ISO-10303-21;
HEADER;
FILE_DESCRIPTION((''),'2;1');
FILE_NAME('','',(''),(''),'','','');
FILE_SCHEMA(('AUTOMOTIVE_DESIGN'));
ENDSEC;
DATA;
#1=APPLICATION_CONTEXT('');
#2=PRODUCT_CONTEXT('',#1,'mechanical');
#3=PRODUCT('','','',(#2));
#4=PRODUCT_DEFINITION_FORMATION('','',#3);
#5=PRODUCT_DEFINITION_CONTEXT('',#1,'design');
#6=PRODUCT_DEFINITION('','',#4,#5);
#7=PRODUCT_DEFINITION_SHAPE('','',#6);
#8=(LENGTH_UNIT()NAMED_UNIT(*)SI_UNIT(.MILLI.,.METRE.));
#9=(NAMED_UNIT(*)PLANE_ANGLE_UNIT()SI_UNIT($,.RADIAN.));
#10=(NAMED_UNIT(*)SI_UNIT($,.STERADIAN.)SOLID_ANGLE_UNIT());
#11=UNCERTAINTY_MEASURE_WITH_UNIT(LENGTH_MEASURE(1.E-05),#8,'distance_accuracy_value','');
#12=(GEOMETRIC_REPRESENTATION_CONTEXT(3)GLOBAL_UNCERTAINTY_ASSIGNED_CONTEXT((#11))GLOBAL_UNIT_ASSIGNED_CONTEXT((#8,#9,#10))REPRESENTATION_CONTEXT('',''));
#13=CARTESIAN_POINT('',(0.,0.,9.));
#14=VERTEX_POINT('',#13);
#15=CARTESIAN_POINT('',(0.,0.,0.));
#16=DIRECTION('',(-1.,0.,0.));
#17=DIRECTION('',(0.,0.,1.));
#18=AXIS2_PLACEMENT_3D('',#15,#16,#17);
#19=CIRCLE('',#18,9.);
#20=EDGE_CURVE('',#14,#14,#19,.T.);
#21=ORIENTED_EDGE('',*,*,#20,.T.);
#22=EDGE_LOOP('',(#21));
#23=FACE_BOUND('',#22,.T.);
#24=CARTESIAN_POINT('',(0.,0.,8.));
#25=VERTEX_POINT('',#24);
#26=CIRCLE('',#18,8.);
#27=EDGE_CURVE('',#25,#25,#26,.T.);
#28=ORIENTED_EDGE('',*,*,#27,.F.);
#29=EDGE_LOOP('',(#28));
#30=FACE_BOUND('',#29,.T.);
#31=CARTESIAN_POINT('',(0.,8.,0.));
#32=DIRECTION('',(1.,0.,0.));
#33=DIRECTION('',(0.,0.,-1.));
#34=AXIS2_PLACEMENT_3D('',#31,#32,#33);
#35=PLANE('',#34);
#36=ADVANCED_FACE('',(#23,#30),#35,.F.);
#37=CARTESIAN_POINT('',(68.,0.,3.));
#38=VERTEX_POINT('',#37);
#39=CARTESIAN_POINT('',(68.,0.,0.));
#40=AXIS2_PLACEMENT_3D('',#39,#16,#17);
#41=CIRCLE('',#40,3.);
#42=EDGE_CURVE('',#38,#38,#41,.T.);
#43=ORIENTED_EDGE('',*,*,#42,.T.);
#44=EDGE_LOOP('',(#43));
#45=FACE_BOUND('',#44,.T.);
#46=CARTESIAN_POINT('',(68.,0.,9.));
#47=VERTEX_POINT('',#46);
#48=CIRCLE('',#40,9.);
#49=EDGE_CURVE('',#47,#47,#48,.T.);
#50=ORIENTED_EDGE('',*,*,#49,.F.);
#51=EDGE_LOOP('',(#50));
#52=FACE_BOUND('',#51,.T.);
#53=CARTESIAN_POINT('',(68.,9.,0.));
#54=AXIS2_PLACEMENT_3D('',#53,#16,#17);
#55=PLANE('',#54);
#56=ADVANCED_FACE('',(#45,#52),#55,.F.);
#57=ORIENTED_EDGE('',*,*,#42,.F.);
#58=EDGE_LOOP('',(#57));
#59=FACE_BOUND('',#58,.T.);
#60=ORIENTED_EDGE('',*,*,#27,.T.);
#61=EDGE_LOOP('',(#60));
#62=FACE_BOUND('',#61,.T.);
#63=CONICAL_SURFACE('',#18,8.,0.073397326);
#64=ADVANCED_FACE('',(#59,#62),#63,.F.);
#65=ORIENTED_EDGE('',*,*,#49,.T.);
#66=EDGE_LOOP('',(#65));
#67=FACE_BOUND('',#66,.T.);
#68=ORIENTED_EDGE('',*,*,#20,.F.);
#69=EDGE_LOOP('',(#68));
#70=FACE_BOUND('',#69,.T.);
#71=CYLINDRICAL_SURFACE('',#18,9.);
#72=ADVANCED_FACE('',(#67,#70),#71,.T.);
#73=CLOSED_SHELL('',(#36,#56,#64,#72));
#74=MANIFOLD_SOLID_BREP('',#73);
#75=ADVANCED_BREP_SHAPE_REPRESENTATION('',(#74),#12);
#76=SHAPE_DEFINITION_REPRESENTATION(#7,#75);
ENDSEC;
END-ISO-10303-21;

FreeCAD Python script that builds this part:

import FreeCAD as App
import Part
import Sketcher
from FreeCAD import Vector

doc = App.newDocument("Part")
body = doc.addObject("PartDesign::Body", "Body")

# Sketch on XY plane
sketch1 = body.newObject("Sketcher::SketchObject", "Sketch")
sketch1.AttachmentSupport = (doc.getObject("XY_Plane"), [""])
sketch1.MapMode = "FlatFace"
sketch1.addGeometry(Part.LineSegment(Vector(68, 9, 0), Vector(0, 9, 0)), False)
sketch1.addGeometry(Part.LineSegment(Vector(0, 9, 0), Vector(0, 8, 0)), False)
sketch1.addGeometry(Part.LineSegment(Vector(0, 8, 0), Vector(68, 3, 0)), False)
sketch1.addGeometry(Part.LineSegment(Vector(68, 3, 0), Vector(68, 9, 0)), False)
sketch1.addConstraint(Sketcher.Constraint("Coincident", 0, 2, 1, 1))
sketch1.addConstraint(Sketcher.Constraint("Coincident", 1, 2, 2, 1))
sketch1.addConstraint(Sketcher.Constraint("Coincident", 2, 2, 3, 1))
sketch1.addConstraint(Sketcher.Constraint("Coincident", 3, 2, 0, 1))
sketch1.addConstraint(Sketcher.Constraint("Horizontal", 0))
sketch1.addConstraint(Sketcher.Constraint("Vertical", 1))
sketch1.addConstraint(Sketcher.Constraint("Vertical", 3))
sketch1.addConstraint(Sketcher.Constraint("PointOnObject", 0, 2, -2))
sketch1.addConstraint(Sketcher.Constraint("DistanceX", 0, 2, 0, 1, 68.0))
sketch1.addConstraint(Sketcher.Constraint("DistanceY", 1, 2, 1, 1, 1.0))
sketch1.addConstraint(Sketcher.Constraint("DistanceY", 3, 1, 3, 2, 6.0))
sketch1.addConstraint(Sketcher.Constraint("DistanceY", -1, 1, 0, 2, 9.0))
revolution = body.newObject("PartDesign::Revolution", "Revolution")
revolution.Profile = sketch1
revolution.ReferenceAxis = (sketch1, ["H_Axis"])
revolution.Angle = 360

doc.recompute()
